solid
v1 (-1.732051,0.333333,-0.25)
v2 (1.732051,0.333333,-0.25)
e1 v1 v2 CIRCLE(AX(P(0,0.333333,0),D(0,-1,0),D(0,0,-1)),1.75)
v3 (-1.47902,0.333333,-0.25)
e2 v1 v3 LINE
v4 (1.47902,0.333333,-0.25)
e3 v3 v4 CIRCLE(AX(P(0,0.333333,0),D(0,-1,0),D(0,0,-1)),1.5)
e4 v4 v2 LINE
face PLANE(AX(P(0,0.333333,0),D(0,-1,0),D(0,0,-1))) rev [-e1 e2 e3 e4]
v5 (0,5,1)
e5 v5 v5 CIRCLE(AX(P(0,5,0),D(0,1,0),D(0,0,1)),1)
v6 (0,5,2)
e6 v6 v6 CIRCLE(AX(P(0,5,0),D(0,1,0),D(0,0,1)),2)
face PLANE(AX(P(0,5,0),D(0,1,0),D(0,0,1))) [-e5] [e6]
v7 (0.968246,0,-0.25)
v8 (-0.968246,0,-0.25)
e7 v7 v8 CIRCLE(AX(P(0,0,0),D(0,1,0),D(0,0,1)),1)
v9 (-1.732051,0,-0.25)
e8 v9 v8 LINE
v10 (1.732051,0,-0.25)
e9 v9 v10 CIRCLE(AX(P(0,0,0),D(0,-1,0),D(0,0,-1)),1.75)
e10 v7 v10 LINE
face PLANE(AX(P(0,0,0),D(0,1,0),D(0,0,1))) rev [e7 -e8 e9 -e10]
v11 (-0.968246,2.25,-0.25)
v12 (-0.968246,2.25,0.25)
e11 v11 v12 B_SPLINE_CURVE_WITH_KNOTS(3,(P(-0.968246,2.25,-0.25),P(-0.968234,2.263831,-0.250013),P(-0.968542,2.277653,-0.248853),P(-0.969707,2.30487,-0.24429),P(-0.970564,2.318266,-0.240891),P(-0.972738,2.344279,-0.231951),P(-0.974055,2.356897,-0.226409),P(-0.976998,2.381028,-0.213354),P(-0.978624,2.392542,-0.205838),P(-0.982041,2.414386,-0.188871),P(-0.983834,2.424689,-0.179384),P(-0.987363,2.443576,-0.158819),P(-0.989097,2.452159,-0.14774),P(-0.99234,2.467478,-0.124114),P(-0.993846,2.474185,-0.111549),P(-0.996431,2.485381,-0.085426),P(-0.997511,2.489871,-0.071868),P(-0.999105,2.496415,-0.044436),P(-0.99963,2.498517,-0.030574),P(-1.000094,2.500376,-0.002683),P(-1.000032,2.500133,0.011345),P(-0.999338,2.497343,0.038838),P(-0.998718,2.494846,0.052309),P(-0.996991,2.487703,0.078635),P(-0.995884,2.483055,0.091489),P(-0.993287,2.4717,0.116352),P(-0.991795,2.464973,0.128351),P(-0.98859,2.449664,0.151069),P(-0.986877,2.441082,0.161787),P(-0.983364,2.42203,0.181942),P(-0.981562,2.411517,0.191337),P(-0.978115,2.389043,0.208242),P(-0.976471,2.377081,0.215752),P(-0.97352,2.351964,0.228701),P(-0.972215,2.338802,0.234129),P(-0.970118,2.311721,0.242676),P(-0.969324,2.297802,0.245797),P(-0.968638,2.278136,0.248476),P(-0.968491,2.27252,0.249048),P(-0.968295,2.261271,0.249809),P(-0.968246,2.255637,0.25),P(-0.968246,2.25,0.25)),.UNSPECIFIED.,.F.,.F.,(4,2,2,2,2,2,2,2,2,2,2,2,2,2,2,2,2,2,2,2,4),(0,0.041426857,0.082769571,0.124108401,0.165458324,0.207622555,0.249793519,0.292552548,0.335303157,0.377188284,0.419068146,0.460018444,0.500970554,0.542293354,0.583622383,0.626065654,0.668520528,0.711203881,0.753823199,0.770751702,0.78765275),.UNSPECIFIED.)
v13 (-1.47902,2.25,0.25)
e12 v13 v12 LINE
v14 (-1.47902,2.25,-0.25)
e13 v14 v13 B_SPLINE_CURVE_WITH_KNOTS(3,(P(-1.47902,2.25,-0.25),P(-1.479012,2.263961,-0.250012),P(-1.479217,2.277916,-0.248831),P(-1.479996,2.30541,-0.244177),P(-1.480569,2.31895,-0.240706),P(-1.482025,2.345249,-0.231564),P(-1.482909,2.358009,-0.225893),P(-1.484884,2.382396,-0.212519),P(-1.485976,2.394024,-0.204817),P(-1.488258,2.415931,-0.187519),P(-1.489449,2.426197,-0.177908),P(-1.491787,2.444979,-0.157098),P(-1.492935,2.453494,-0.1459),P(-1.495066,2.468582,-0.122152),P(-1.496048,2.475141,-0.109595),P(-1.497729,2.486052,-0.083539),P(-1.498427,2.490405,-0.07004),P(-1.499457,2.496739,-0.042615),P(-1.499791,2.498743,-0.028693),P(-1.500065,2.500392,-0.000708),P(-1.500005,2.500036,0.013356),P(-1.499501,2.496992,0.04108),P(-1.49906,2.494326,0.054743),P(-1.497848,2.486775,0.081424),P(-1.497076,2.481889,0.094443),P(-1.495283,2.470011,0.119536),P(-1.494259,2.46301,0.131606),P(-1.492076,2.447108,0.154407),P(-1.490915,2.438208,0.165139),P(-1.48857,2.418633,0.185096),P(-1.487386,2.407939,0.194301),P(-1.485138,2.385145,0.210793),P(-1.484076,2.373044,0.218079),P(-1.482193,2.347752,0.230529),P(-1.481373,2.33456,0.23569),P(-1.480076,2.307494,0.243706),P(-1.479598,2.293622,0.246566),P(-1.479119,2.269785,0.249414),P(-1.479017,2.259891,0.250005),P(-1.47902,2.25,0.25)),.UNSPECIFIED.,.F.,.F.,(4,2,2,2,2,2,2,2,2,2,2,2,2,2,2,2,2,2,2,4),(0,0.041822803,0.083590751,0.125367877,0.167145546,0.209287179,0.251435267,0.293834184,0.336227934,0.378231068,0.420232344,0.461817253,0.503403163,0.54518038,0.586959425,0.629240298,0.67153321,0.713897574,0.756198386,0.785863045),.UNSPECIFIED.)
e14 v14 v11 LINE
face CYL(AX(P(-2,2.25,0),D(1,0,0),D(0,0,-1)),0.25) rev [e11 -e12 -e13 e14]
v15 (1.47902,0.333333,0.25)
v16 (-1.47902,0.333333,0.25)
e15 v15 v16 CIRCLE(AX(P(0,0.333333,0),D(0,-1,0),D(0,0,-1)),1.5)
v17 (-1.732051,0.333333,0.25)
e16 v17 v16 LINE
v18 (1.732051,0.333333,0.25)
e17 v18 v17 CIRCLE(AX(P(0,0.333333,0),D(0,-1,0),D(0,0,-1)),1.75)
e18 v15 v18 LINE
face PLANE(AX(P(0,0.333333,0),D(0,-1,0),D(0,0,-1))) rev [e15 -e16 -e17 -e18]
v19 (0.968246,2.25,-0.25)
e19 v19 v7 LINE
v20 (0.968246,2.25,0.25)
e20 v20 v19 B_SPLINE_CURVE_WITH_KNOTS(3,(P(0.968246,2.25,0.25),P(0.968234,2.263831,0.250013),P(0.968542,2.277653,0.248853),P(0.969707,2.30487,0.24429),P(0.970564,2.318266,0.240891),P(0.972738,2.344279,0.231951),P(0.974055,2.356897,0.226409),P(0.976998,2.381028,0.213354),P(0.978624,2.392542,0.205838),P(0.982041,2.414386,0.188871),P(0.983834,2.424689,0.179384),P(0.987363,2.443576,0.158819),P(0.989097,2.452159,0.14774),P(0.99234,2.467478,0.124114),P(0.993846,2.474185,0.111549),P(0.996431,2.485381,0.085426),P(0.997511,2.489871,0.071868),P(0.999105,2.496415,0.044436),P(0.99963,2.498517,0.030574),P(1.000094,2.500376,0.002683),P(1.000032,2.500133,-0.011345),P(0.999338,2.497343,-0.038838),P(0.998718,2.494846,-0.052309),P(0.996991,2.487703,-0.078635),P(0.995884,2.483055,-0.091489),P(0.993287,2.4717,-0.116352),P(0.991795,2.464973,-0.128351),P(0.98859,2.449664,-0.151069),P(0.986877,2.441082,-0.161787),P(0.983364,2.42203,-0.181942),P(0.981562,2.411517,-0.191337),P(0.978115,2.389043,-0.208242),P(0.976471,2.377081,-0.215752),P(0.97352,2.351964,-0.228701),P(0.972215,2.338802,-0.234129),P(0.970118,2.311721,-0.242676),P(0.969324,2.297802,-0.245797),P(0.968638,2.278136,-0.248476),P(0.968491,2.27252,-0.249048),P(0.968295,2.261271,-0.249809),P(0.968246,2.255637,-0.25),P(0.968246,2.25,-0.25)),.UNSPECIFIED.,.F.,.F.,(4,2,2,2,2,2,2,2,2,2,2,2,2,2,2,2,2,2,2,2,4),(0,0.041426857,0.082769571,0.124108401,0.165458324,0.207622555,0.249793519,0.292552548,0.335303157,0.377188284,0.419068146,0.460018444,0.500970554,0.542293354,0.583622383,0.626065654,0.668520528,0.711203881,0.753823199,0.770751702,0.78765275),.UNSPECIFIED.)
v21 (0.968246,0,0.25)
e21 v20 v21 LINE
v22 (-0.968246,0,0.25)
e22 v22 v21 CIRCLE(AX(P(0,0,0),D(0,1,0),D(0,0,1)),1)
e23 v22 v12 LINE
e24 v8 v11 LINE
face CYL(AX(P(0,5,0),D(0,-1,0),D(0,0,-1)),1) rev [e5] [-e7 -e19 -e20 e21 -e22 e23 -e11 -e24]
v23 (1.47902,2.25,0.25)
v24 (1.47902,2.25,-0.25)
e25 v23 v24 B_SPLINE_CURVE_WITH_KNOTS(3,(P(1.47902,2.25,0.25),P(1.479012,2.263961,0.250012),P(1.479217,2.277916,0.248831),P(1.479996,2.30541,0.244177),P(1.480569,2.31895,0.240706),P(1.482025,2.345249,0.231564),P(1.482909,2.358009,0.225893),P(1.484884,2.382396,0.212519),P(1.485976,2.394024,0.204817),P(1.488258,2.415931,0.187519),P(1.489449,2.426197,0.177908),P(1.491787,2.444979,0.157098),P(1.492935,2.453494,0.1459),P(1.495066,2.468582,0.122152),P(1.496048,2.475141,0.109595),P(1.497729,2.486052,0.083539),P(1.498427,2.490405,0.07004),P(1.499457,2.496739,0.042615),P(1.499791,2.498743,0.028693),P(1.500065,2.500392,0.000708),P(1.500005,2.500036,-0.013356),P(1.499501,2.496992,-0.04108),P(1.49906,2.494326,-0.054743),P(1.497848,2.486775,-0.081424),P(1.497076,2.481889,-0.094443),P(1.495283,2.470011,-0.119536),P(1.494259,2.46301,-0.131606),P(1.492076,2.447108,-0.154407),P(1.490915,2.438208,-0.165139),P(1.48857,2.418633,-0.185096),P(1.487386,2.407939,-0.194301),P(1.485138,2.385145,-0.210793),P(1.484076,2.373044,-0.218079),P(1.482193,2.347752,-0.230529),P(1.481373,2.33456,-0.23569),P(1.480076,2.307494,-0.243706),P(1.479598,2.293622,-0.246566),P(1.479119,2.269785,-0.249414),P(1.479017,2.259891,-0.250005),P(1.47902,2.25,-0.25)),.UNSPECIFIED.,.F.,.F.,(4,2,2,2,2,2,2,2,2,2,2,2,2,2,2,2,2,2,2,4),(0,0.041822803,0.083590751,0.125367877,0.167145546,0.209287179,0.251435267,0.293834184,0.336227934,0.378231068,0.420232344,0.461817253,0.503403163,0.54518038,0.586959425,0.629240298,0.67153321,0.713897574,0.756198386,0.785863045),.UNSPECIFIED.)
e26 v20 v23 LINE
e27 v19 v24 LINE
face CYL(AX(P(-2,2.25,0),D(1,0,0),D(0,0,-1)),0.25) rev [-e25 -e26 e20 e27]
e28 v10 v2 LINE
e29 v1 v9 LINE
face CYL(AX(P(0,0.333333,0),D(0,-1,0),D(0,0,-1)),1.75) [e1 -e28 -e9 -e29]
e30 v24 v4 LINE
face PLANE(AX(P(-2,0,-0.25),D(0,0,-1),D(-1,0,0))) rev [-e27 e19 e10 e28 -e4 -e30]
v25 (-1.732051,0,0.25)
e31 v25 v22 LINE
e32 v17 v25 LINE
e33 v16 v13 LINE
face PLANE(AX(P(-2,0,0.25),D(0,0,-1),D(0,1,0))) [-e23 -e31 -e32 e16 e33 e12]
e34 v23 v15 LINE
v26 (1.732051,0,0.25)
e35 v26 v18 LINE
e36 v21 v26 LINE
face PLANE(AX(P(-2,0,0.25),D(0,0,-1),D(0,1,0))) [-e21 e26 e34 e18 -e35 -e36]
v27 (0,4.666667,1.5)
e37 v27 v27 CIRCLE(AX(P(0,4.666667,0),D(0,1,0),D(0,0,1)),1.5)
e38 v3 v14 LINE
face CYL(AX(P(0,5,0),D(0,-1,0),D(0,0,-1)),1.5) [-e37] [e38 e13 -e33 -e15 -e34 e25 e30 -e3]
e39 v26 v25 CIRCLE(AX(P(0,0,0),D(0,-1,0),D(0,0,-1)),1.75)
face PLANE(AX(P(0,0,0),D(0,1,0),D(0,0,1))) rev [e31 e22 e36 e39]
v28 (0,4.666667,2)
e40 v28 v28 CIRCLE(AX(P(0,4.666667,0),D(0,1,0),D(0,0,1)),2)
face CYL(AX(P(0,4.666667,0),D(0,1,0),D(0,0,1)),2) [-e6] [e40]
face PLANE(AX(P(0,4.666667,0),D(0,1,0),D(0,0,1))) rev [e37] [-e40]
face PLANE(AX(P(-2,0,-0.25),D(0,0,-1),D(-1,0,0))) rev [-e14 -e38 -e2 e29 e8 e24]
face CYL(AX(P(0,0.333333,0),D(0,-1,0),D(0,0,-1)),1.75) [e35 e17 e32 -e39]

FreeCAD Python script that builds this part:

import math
import FreeCAD as App
import Part
import Sketcher

V = App.Vector
Q = App.Units.Quantity

doc = App.newDocument("Part")
params = doc.addObject("Spreadsheet::Sheet", "Params")
for row, (alias, value) in enumerate([
    ("sketch1_diameter", "3 mm"),
    ("sketch1_diameter2", "2 mm"),
    ("pad1_length", "5 mm"),
    ("sketch2_diameter", "4 mm"),
    ("sketch2_diameter2", "2 mm"),
    ("pad2_length", "0.333333 mm"),
    ("sketch3_diameter", "2 mm"),
    ("sketch3_diameter2", "3.5 mm"),
    ("pad3_length", "0.333333 mm"),
    ("sketch4_radius", "0.25 mm"),
    ("sketch4_width", "2.25 mm"),
], start=1):
    params.set(f"A{row}", alias)
    params.set(f"B{row}", "=" + value)
    params.setAlias(f"B{row}", alias)

body = doc.addObject("PartDesign::Body", "Body")

sketch1 = body.newObject("Sketcher::SketchObject", "Sketch")
sketch1.AttachmentSupport = (doc.getObject("XZ_Plane"), [""])
sketch1.MapMode = "FlatFace"
sketch1.addGeometry(Part.Circle(V(0, 0, 0), V(0, 0, 1), 1.5), False)
sketch1.addGeometry(Part.Circle(V(0, 0, 0), V(0, 0, 1), 1), False)
sketch1.addConstraint(Sketcher.Constraint("Coincident", 0, 3, -1, 1))
sketch1.addConstraint(Sketcher.Constraint("Coincident", 1, 3, -1, 1))
sketch1.addConstraint(Sketcher.Constraint("Diameter", 0, Q("3 mm")))
sketch1.addConstraint(Sketcher.Constraint("Diameter", 1, Q("2 mm")))
sketch1.setExpression("Constraints[2]", "Params.sketch1_diameter")
sketch1.setExpression("Constraints[3]", "Params.sketch1_diameter2")
pad1 = body.newObject("PartDesign::Pad", "Pad")
pad1.Profile = sketch1
pad1.setExpression("Length", "Params.pad1_length")
pad1.Reversed = True

sketch2 = body.newObject("Sketcher::SketchObject", "Sketch001")
sketch2.AttachmentSupport = (doc.getObject("XZ_Plane"), [""])
sketch2.MapMode = "FlatFace"
sketch2.AttachmentOffset = App.Placement(V(0, 0, -5), App.Rotation())
sketch2.addGeometry(Part.Circle(V(0, 0, 0), V(0, 0, 1), 2), False)
sketch2.addGeometry(Part.Circle(V(0, 0, 0), V(0, 0, 1), 1), False)
sketch2.addConstraint(Sketcher.Constraint("Coincident", 0, 3, -1, 1))
sketch2.addConstraint(Sketcher.Constraint("Coincident", 1, 3, -1, 1))
sketch2.addConstraint(Sketcher.Constraint("Diameter", 0, Q("4 mm")))
sketch2.addConstraint(Sketcher.Constraint("Diameter", 1, Q("2 mm")))
sketch2.setExpression("Constraints[2]", "Params.sketch2_diameter")
sketch2.setExpression("Constraints[3]", "Params.sketch2_diameter2")
pad2 = body.newObject("PartDesign::Pad", "Pad001")
pad2.Profile = sketch2
pad2.setExpression("Length", "Params.pad2_length")

sketch3 = body.newObject("Sketcher::SketchObject", "Sketch002")
sketch3.AttachmentSupport = (doc.getObject("XZ_Plane"), [""])
sketch3.MapMode = "FlatFace"
sketch3.addGeometry(Part.Circle(V(0, 0, 0), V(0, 0, 1), 1.8), False)
sketch3.addGeometry(Part.Circle(V(0, 0, 0), V(0, 0, 1), 1), False)
sketch3.addConstraint(Sketcher.Constraint("Coincident", 0, 3, -1, 1))
sketch3.addConstraint(Sketcher.Constraint("Coincident", 1, 3, -1, 1))
sketch3.addConstraint(Sketcher.Constraint("Diameter", 1, Q("2 mm")))
sketch3.addConstraint(Sketcher.Constraint("Diameter", 0, Q("3.5 mm")))
sketch3.setExpression("Constraints[2]", "Params.sketch3_diameter")
sketch3.setExpression("Constraints[3]", "Params.sketch3_diameter2")
pad3 = body.newObject("PartDesign::Pad", "Pad002")
pad3.Profile = sketch3
pad3.setExpression("Length", "Params.pad3_length")
pad3.Reversed = True

sketch4 = body.newObject("Sketcher::SketchObject", "Sketch003")
sketch4.AttachmentSupport = (doc.getObject("YZ_Plane"), [""])
sketch4.MapMode = "FlatFace"
sketch4.addGeometry(Part.ArcOfCircle(Part.Circle(V(2.25, 0, 0), V(0, 0, 1), 0.25), math.radians(-90), math.radians(90)), False)
sketch4.addGeometry(Part.LineSegment(V(2.25, 0.25, 0), V(0, 0.25, 0)), False)
sketch4.addGeometry(Part.LineSegment(V(0, 0.25, 0), V(0, -0.25, 0)), False)
sketch4.addGeometry(Part.LineSegment(V(0, -0.25, 0), V(2.25, -0.25, 0)), False)
sketch4.addConstraint(Sketcher.Constraint("Tangent", 0, 2, 1, 1))
sketch4.addConstraint(Sketcher.Constraint("Coincident", 1, 2, 2, 1))
sketch4.addConstraint(Sketcher.Constraint("Coincident", 2, 2, 3, 1))
sketch4.addConstraint(Sketcher.Constraint("Tangent", 3, 2, 0, 1))
sketch4.addConstraint(Sketcher.Constraint("Horizontal", 1))
sketch4.addConstraint(Sketcher.Constraint("Vertical", 2))
sketch4.addConstraint(Sketcher.Constraint("Horizontal", 3))
sketch4.addConstraint(Sketcher.Constraint("Symmetric", 1, 2, 2, 2, -1, 1))
sketch4.addConstraint(Sketcher.Constraint("Radius", 0, Q("0.25 mm")))
sketch4.addConstraint(Sketcher.Constraint("DistanceX", 1, 2, 1, 1, Q("2.25 mm")))
sketch4.setExpression("Constraints[8]", "Params.sketch4_radius")
sketch4.setExpression("Constraints[9]", "Params.sketch4_width")
pocket1 = body.newObject("PartDesign::Pocket", "Pocket")
pocket1.Profile = sketch4
pocket1.Type = "ThroughAll"
pocket1.Midplane = True

doc.recompute()
